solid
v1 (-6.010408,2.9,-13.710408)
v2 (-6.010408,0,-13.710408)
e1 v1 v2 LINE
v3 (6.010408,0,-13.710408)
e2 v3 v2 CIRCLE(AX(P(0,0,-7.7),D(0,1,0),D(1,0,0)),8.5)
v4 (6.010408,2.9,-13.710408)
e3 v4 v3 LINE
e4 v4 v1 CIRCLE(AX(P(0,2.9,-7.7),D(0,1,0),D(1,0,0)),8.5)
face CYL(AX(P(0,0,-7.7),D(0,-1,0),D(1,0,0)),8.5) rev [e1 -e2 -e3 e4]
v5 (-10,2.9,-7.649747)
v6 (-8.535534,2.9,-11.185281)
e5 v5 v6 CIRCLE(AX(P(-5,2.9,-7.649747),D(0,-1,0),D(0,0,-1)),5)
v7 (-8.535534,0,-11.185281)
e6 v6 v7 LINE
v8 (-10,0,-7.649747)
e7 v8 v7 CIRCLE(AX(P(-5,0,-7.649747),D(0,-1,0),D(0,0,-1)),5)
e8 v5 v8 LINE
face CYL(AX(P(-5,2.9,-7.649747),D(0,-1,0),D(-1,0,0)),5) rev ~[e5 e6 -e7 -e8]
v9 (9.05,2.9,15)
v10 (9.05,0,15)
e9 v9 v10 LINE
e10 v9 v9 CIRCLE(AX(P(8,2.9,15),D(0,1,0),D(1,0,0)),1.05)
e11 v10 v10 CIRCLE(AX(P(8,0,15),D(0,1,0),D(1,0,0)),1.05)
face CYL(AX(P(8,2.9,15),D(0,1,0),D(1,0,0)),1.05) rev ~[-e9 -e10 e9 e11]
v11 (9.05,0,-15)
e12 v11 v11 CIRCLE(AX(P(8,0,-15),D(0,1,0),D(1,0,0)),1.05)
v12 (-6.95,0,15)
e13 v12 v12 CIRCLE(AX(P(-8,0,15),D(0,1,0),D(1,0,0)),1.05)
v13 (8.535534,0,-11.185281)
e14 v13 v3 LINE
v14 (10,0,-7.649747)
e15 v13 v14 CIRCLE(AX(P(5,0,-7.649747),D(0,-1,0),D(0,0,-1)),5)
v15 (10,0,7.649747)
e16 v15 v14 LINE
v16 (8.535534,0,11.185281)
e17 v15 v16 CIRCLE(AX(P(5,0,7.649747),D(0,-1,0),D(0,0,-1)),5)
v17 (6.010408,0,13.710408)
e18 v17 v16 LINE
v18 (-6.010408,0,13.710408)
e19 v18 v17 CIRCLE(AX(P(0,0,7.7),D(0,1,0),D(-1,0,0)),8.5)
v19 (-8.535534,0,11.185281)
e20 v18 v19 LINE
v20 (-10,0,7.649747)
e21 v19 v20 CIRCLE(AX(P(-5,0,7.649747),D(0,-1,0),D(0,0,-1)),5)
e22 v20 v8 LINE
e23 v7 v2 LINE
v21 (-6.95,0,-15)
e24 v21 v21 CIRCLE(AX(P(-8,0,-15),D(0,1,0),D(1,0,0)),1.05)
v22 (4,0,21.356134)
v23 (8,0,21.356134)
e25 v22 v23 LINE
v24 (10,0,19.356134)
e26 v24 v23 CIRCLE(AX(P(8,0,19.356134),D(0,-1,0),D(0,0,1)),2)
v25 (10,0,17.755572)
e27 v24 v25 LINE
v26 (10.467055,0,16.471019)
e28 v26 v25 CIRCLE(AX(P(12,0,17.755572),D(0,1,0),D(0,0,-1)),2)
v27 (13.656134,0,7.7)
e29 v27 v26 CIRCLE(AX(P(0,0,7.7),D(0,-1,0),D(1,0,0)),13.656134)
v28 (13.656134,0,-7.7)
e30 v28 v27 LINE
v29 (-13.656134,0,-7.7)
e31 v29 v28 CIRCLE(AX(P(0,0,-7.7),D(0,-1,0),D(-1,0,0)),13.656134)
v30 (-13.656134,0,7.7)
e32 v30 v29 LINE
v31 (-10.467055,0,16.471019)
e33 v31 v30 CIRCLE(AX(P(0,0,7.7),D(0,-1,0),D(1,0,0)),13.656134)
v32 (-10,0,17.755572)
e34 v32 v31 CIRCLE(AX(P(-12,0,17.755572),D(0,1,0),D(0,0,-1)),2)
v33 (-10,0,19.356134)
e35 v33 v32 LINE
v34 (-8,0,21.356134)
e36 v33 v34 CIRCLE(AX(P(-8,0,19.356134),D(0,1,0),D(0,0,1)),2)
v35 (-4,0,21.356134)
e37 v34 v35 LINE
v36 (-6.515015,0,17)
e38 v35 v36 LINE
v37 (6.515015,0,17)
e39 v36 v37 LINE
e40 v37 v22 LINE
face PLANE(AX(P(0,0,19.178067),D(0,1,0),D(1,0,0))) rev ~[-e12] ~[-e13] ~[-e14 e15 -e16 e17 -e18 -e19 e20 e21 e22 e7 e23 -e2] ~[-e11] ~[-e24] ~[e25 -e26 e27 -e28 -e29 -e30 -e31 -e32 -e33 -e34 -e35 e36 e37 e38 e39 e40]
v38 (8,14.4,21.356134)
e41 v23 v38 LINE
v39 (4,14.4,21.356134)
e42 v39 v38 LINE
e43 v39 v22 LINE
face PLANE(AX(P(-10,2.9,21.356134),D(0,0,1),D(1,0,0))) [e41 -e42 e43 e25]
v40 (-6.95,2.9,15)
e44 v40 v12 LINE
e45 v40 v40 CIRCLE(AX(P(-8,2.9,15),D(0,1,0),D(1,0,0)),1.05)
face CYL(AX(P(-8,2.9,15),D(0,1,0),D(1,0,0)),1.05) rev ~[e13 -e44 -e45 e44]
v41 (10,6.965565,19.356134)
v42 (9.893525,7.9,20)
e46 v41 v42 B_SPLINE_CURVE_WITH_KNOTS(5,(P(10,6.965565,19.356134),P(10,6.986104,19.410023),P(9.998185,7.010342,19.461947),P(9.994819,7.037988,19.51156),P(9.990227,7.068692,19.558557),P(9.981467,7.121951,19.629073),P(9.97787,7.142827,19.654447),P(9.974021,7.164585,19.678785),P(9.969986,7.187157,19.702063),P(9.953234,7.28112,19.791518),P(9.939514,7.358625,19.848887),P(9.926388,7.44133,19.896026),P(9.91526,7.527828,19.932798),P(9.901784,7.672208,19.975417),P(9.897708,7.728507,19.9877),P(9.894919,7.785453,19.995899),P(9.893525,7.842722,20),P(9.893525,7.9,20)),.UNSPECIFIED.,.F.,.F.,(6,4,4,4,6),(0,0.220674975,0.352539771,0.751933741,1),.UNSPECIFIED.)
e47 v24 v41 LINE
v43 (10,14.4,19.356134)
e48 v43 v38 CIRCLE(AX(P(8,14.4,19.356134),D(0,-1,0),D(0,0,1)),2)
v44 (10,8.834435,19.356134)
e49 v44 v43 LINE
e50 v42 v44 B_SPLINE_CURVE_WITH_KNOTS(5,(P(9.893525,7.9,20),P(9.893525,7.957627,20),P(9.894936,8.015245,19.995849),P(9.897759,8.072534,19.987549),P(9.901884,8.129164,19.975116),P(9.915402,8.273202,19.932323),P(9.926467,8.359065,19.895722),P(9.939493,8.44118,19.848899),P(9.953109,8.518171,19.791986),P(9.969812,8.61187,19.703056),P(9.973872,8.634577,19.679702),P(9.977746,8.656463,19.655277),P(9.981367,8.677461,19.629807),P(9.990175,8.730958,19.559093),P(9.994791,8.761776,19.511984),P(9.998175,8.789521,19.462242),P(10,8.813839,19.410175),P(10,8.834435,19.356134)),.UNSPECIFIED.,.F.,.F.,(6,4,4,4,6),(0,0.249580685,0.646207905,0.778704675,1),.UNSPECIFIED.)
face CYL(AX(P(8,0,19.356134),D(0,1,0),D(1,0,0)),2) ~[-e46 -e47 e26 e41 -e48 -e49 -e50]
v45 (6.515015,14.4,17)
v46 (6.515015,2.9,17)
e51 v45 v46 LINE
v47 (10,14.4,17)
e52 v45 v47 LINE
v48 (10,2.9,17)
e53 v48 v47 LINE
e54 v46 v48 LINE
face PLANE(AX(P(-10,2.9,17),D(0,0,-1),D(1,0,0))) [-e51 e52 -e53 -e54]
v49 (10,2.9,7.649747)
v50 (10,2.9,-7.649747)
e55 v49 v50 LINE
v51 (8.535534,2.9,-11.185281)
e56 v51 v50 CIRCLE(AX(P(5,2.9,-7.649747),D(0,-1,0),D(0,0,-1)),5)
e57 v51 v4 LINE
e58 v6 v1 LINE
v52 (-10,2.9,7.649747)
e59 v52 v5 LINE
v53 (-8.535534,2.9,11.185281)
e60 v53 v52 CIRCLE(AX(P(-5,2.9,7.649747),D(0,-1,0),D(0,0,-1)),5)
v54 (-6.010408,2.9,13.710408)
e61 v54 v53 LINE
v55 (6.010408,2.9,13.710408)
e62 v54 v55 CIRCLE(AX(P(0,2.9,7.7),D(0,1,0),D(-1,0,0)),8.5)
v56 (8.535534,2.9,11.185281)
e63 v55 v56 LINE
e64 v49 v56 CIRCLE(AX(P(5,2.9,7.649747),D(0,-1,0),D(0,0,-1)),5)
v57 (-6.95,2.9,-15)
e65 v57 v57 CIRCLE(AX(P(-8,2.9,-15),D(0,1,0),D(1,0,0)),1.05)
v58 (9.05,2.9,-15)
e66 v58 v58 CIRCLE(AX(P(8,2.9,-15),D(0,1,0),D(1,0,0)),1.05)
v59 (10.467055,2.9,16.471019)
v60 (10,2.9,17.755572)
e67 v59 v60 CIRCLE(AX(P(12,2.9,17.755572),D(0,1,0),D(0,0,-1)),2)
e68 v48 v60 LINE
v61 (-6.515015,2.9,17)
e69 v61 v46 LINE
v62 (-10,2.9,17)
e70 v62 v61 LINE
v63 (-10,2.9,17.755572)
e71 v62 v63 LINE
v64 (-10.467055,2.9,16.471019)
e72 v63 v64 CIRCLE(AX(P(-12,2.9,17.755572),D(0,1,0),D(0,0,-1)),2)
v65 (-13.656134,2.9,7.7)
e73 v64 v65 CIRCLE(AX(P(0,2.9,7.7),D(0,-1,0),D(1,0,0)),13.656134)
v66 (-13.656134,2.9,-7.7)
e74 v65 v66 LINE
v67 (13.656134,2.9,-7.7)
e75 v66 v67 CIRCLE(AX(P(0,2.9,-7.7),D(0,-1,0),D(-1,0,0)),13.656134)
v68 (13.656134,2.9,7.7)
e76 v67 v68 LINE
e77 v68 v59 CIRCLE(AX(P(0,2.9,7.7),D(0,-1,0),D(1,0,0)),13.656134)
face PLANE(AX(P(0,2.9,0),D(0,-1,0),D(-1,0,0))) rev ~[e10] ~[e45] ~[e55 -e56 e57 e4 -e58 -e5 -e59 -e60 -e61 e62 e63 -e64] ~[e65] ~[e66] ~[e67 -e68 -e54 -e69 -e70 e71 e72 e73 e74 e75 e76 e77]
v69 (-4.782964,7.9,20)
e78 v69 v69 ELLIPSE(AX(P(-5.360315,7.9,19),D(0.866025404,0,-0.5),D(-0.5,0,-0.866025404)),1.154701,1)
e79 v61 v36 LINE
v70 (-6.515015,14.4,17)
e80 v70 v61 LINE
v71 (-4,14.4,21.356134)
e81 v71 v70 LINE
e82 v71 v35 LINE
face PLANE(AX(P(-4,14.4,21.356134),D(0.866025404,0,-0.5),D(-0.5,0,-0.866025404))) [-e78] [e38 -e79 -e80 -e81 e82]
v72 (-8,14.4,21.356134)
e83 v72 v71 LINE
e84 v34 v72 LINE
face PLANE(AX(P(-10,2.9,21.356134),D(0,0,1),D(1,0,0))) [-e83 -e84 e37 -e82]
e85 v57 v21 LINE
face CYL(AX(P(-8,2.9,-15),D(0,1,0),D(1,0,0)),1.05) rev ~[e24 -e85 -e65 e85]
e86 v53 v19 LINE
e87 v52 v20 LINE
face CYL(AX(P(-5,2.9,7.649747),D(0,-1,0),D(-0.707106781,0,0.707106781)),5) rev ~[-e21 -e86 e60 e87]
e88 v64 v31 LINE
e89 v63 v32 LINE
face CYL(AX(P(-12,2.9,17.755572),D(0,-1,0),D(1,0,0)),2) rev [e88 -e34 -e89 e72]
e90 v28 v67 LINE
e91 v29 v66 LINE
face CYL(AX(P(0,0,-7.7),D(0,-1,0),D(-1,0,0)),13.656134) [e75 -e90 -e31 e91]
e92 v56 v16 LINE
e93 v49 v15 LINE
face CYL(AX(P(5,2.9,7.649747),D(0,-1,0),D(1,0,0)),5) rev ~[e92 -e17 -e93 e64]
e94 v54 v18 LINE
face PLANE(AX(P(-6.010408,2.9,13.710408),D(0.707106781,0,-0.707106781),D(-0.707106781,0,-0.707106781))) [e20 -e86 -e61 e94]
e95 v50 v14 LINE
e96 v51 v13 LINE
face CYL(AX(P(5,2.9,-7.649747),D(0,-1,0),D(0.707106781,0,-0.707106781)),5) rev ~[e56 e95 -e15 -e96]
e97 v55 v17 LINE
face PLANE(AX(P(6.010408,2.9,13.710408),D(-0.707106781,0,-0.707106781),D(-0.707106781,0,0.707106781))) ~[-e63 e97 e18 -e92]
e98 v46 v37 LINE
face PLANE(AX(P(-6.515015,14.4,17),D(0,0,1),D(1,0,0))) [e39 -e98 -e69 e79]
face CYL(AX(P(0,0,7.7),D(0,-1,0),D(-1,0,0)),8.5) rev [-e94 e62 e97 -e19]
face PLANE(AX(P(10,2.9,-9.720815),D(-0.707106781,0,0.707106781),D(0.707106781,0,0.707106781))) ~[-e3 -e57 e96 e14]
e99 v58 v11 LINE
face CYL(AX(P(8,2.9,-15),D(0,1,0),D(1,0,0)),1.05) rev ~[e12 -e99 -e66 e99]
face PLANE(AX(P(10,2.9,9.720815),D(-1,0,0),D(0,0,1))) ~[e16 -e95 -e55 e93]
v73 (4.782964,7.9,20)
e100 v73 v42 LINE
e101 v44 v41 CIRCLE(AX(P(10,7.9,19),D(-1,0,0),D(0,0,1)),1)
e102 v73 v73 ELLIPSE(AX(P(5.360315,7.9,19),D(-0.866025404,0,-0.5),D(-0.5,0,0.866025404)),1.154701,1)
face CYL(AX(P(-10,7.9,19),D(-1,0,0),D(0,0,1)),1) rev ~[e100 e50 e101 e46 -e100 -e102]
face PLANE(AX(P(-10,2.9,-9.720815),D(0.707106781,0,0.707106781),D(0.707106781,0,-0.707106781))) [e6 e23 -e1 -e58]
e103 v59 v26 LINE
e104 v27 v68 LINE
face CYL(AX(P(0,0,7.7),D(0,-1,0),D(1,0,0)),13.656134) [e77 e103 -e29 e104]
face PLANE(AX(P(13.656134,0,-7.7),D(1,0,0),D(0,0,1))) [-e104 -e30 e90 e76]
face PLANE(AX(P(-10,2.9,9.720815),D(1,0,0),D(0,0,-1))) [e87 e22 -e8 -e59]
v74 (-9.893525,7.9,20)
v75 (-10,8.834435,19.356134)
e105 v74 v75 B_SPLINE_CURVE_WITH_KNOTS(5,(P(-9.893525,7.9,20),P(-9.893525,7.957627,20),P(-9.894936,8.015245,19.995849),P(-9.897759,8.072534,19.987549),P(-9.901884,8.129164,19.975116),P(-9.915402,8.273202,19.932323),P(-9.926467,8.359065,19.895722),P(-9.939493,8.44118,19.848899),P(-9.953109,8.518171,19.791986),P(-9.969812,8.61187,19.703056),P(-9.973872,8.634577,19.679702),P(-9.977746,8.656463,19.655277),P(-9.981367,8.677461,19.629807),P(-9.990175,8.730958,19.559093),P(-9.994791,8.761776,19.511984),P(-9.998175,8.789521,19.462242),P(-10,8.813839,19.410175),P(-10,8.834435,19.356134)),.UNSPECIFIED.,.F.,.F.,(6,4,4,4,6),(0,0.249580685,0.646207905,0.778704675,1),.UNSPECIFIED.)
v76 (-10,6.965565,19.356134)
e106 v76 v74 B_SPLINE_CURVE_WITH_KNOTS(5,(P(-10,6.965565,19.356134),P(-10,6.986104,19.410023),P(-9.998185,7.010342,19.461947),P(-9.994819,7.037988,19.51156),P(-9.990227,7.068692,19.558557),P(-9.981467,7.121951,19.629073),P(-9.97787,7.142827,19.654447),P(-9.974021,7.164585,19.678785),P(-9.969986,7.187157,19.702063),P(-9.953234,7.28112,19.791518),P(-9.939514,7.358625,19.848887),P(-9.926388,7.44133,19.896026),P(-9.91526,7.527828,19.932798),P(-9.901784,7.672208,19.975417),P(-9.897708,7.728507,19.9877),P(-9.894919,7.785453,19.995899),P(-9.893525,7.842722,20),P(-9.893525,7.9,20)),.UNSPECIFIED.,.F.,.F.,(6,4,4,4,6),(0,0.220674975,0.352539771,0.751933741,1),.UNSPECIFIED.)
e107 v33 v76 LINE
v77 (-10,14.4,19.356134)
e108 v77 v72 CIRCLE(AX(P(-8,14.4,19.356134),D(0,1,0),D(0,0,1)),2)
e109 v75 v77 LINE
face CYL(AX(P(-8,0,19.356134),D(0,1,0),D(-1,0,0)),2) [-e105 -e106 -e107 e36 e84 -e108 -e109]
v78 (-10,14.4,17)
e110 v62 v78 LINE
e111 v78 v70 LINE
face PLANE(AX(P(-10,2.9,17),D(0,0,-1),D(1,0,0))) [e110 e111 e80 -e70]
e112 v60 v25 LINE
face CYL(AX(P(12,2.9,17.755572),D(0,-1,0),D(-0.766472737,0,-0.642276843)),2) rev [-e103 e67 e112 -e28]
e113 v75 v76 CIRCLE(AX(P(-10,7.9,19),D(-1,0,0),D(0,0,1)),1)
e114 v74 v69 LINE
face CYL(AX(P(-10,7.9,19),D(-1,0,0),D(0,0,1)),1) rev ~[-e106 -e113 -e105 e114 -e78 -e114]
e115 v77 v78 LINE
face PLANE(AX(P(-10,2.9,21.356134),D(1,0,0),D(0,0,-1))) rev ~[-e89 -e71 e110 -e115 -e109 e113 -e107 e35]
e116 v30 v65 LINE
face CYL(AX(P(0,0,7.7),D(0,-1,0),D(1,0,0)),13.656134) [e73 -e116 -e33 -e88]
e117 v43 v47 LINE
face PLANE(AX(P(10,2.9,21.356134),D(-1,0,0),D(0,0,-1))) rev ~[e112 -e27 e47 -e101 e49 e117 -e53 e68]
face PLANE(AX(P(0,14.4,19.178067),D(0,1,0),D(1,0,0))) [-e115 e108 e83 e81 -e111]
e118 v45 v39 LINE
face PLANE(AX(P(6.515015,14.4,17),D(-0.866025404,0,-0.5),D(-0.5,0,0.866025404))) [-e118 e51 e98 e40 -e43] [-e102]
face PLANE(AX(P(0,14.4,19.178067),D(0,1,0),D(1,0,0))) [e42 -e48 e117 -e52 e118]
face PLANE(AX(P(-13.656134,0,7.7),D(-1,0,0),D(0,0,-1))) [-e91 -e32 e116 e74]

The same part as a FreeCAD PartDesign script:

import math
import FreeCAD as App
import Part
import Sketcher

V = App.Vector
Q = App.Units.Quantity


def edges_at(feature, points):
    """Names of the edges that pass closest to the given points."""
    edges = feature.Shape.Edges
    near = lambda p: min(range(len(edges)), key=lambda i: edges[i].distToShape(Part.Vertex(*p))[0])
    return sorted({f"Edge{near(p) + 1}" for p in points})


def add_polygon(sketch, points):
    """Adds a closed chain of lines whose ends are joined by coincident constraints."""
    first, n = sketch.GeometryCount, len(points)
    for a, b in zip(points, points[1:] + points[:1]):
        sketch.addGeometry(Part.LineSegment(App.Vector(*a, 0), App.Vector(*b, 0)), False)
    for i in range(n):
        sketch.addConstraint(Sketcher.Constraint("Coincident", first + i, 2, first + (i + 1) % n, 1))

doc = App.newDocument("Part")
body = doc.addObject("PartDesign::Body", "Body")

# Sketch on XZ plane
sketch1 = body.newObject("Sketcher::SketchObject", "Sketch")
sketch1.AttachmentSupport = (doc.getObject("XZ_Plane"), [""])
sketch1.MapMode = "FlatFace"
sketch1.addGeometry([
    Part.LineSegment(V(-13.656134, -7.7, 0), V(-13.656134, 7.7, 0)),  # 0
    Part.ArcOfCircle(Part.Circle(V(0, 7.7, 0), V(0, 0, 1), 13.656134), math.radians(0), math.radians(180)),  # 1
    Part.LineSegment(V(13.656134, 7.7, 0), V(13.656134, -7.7, 0)),  # 2
    Part.ArcOfCircle(Part.Circle(V(0, -7.7, 0), V(0, 0, 1), 13.656134), math.radians(180), math.radians(360)),  # 3
    Part.ArcOfCircle(Part.Circle(V(0, -7.7, 0), V(0, 0, 1), 8.5), math.radians(180), math.radians(360)),  # 4
    Part.LineSegment(V(8.5, -7.7, 0), V(8.5, 7.7, 0)),  # 5
    Part.ArcOfCircle(Part.Circle(V(0, 7.7, 0), V(0, 0, 1), 8.5), math.radians(0), math.radians(180)),  # 6
    Part.LineSegment(V(-8.5, 7.7, 0), V(-8.5, -7.7, 0)),  # 7
], False)
sketch1.addConstraint([
    Sketcher.Constraint("Tangent", 0, 2, 1, 2),
    Sketcher.Constraint("Tangent", 1, 1, 2, 1),
    Sketcher.Constraint("Tangent", 2, 2, 3, 2),
    Sketcher.Constraint("Tangent", 3, 1, 0, 1),
    Sketcher.Constraint("Tangent", 4, 2, 5, 1),
    Sketcher.Constraint("Tangent", 5, 2, 6, 1),
    Sketcher.Constraint("Tangent", 6, 2, 7, 1),
    Sketcher.Constraint("Tangent", 7, 2, 4, 1),
    Sketcher.Constraint("Vertical", 0),
    Sketcher.Constraint("Vertical", 2),
    Sketcher.Constraint("Vertical", 5),
    Sketcher.Constraint("Vertical", 7),
    Sketcher.Constraint("Coincident", 4, 3, 3, 3),
    Sketcher.Constraint("Symmetric", 1, 3, 3, 3, -1, 1),
    Sketcher.Constraint("Horizontal", 6, 3, 0, 2),
    Sketcher.Constraint("Radius", 4, Q("8.5 mm")),
    Sketcher.Constraint("DistanceY", 0, 1, 0, 2, Q("15.4 mm")),
    Sketcher.Constraint("Radius", 1, Q("13.656134 mm")),
])
pad1 = body.newObject("PartDesign::Pad", "Pad")
pad1.Profile = sketch1
pad1.Length = 2.9
pad1.Reversed = True

# Sketch on XZ plane
sketch2 = body.newObject("Sketcher::SketchObject", "Sketch001")
sketch2.AttachmentSupport = (doc.getObject("XZ_Plane"), [""])
sketch2.MapMode = "FlatFace"
sketch2.AttachmentOffset = App.Placement(V(0, 0, -2.9), App.Rotation())
sketch2.addGeometry([
    Part.Circle(V(-8, -15, 0), V(0, 0, 1), 1.05),
    Part.Circle(V(8, -15, 0), V(0, 0, 1), 1.05),
    Part.Circle(V(8, 15, 0), V(0, 0, 1), 1.05),
    Part.Circle(V(-8, 15, 0), V(0, 0, 1), 1.05),
], False)
sketch2.addConstraint([
    Sketcher.Constraint("Equal", 0, 1),
    Sketcher.Constraint("Equal", 1, 2),
    Sketcher.Constraint("Equal", 2, 3),
    Sketcher.Constraint("Symmetric", 0, 3, 2, 3, -1, 1),
    Sketcher.Constraint("Symmetric", 1, 3, 3, 3, -1, 1),
    Sketcher.Constraint("Symmetric", 0, 3, 1, 3, -2),
    Sketcher.Constraint("Diameter", 0, Q("2.1 mm")),
    Sketcher.Constraint("DistanceX", 0, 3, -1, 1, Q("8 mm")),
    Sketcher.Constraint("DistanceY", 0, 3, -1, 1, Q("15 mm")),
])
pocket1 = body.newObject("PartDesign::Pocket", "Pocket")
pocket1.Profile = sketch2
pocket1.Type = "ThroughAll"
pocket1.Reversed = True

# Sketch on XZ plane
sketch3 = body.newObject("Sketcher::SketchObject", "Sketch002")
sketch3.AttachmentSupport = (doc.getObject("XZ_Plane"), [""])
sketch3.MapMode = "FlatFace"
sketch3.AttachmentOffset = App.Placement(V(0, 0, -2.9), App.Rotation())
add_polygon(sketch3, [(-10, 17), (-10, 21.356134), (10, 21.356134), (10, 17)])  # lines 0-3
sketch3.addConstraint([
    Sketcher.Constraint("Vertical", 0),
    Sketcher.Constraint("Horizontal", 1),
    Sketcher.Constraint("Vertical", 2),
    Sketcher.Constraint("Horizontal", 3),
    Sketcher.Constraint("DistanceX", 1, 1, 1, 2, Q("20 mm")),
    Sketcher.Constraint("DistanceX", 0, 2, -1, 1, Q("10 mm")),
    Sketcher.Constraint("DistanceY", -1, 1, 2, 2, Q("17 mm")),
    Sketcher.Constraint("DistanceY", 0, 1, 0, 2, Q("4.356134 mm")),
])
pad2 = body.newObject("PartDesign::Pad", "Pad001")
pad2.Profile = sketch3
pad2.Type = "TwoLengths"
pad2.Length = 11.5
pad2.Length2 = 2.9
pad2.Reversed = True

# Sketch on XZ plane
sketch4 = body.newObject("Sketcher::SketchObject", "Sketch003")
sketch4.AttachmentSupport = (doc.getObject("XZ_Plane"), [""])
sketch4.MapMode = "FlatFace"
sketch4.AttachmentOffset = App.Placement(V(0, 0, -14.4), App.Rotation())
add_polygon(sketch4, [(-6.515015, 17), (-4, 21.356134), (4, 21.356134), (6.515015, 17)])  # lines 0-3
sketch4.addConstraint([
    Sketcher.Constraint("Horizontal", 1),
    Sketcher.Constraint("Horizontal", 3),
    Sketcher.Constraint("Equal", 0, 2),
    Sketcher.Constraint("DistanceX", 1, 1, 1, 2, Q("8 mm")),
    Sketcher.Constraint("Angle", 0, Q("60 deg")),
    Sketcher.Constraint("DistanceX", 0, 2, -1, 1, Q("4 mm")),
    Sketcher.Constraint("DistanceY", -1, 1, 2, 2, Q("17 mm")),
    Sketcher.Constraint("DistanceX", 3, 2, 3, 1, Q("13.03003 mm")),
])
pocket2 = body.newObject("PartDesign::Pocket", "Pocket001")
pocket2.Profile = sketch4
pocket2.Type = "ThroughAll"
pocket2.Reversed = True
doc.recompute()

fillet = body.newObject("PartDesign::Fillet", "Fillet")
fillet.Base = (pocket2, edges_at(pocket2, [
    (10, 7.2, 21.356),
    (10, 1.45, 17),
    (-10, 1.45, 17),
    (-10, 7.2, 21.356),
]))
fillet.Radius = 2

# Sketch on YZ plane
sketch5 = body.newObject("Sketcher::SketchObject", "Sketch004")
sketch5.AttachmentSupport = (doc.getObject("YZ_Plane"), [""])
sketch5.MapMode = "FlatFace"
sketch5.AttachmentOffset = App.Placement(V(0, 0, -10), App.Rotation())
sketch5.addGeometry(Part.Circle(V(7.9, 19, 0), V(0, 0, 1), 1), False)
sketch5.addConstraint([
    Sketcher.Constraint("Diameter", 0, Q("2 mm")),
    Sketcher.Constraint("DistanceY", -1, 1, 0, 3, Q("19 mm")),
    Sketcher.Constraint("DistanceX", -1, 1, 0, 3, Q("7.9 mm")),
])
pocket3 = body.newObject("PartDesign::Pocket", "Pocket002")
pocket3.Profile = sketch5
pocket3.Type = "ThroughAll"
pocket3.Midplane = True

# Sketch on XZ plane
sketch6 = body.newObject("Sketcher::SketchObject", "Sketch005")
sketch6.AttachmentSupport = (doc.getObject("XZ_Plane"), [""])
sketch6.MapMode = "FlatFace"
sketch6.AttachmentOffset = App.Placement(V(0, 0, -2.9), App.Rotation())
add_polygon(sketch6, [(-6.010408, -13.710408), (-10, -9.720815), (-10, 9.720815), (-6.010408, 13.710408)])  # lines 0-3
sketch6.addConstraint([
    Sketcher.Constraint("Vertical", 1),
    Sketcher.Constraint("Vertical", 3),
    Sketcher.Constraint("Perpendicular", 0, 2),
    Sketcher.Constraint("Equal", 0, 2),
    Sketcher.Constraint("DistanceX", 0, 2, -1, 1, Q("10 mm")),
    Sketcher.Constraint("DistanceY", 1, 1, 1, 2, Q("19.441631 mm")),
    Sketcher.Constraint("DistanceY", 3, 2, 3, 1, Q("27.420815 mm")),
    Sketcher.Constraint("DistanceY", 0, 2, -1, 1, Q("9.720815 mm")),
])
pocket4 = body.newObject("PartDesign::Pocket", "Pocket003")
pocket4.Profile = sketch6
pocket4.Length = 10
pocket4.Reversed = True
doc.recompute()

fillet2 = body.newObject("PartDesign::Fillet", "Fillet001")
fillet2.Base = (pocket4, edges_at(pocket4, [(-10, 1.45, 9.721), (-10, 1.45, -9.721)]))
fillet2.Radius = 5
doc.recompute()

mirrored = body.newObject("PartDesign::Mirrored", "Mirrored")
mirrored.Originals = [pocket4]
mirrored.MirrorPlane = (doc.getObject("YZ_Plane"), [""])
body.Tip = mirrored
doc.recompute()

fillet3 = body.newObject("PartDesign::Fillet", "Fillet002")
fillet3.Base = (mirrored, edges_at(mirrored, [(10, 1.45, 9.721), (10, 1.45, -9.721)]))
fillet3.Radius = 5

doc.recompute()
